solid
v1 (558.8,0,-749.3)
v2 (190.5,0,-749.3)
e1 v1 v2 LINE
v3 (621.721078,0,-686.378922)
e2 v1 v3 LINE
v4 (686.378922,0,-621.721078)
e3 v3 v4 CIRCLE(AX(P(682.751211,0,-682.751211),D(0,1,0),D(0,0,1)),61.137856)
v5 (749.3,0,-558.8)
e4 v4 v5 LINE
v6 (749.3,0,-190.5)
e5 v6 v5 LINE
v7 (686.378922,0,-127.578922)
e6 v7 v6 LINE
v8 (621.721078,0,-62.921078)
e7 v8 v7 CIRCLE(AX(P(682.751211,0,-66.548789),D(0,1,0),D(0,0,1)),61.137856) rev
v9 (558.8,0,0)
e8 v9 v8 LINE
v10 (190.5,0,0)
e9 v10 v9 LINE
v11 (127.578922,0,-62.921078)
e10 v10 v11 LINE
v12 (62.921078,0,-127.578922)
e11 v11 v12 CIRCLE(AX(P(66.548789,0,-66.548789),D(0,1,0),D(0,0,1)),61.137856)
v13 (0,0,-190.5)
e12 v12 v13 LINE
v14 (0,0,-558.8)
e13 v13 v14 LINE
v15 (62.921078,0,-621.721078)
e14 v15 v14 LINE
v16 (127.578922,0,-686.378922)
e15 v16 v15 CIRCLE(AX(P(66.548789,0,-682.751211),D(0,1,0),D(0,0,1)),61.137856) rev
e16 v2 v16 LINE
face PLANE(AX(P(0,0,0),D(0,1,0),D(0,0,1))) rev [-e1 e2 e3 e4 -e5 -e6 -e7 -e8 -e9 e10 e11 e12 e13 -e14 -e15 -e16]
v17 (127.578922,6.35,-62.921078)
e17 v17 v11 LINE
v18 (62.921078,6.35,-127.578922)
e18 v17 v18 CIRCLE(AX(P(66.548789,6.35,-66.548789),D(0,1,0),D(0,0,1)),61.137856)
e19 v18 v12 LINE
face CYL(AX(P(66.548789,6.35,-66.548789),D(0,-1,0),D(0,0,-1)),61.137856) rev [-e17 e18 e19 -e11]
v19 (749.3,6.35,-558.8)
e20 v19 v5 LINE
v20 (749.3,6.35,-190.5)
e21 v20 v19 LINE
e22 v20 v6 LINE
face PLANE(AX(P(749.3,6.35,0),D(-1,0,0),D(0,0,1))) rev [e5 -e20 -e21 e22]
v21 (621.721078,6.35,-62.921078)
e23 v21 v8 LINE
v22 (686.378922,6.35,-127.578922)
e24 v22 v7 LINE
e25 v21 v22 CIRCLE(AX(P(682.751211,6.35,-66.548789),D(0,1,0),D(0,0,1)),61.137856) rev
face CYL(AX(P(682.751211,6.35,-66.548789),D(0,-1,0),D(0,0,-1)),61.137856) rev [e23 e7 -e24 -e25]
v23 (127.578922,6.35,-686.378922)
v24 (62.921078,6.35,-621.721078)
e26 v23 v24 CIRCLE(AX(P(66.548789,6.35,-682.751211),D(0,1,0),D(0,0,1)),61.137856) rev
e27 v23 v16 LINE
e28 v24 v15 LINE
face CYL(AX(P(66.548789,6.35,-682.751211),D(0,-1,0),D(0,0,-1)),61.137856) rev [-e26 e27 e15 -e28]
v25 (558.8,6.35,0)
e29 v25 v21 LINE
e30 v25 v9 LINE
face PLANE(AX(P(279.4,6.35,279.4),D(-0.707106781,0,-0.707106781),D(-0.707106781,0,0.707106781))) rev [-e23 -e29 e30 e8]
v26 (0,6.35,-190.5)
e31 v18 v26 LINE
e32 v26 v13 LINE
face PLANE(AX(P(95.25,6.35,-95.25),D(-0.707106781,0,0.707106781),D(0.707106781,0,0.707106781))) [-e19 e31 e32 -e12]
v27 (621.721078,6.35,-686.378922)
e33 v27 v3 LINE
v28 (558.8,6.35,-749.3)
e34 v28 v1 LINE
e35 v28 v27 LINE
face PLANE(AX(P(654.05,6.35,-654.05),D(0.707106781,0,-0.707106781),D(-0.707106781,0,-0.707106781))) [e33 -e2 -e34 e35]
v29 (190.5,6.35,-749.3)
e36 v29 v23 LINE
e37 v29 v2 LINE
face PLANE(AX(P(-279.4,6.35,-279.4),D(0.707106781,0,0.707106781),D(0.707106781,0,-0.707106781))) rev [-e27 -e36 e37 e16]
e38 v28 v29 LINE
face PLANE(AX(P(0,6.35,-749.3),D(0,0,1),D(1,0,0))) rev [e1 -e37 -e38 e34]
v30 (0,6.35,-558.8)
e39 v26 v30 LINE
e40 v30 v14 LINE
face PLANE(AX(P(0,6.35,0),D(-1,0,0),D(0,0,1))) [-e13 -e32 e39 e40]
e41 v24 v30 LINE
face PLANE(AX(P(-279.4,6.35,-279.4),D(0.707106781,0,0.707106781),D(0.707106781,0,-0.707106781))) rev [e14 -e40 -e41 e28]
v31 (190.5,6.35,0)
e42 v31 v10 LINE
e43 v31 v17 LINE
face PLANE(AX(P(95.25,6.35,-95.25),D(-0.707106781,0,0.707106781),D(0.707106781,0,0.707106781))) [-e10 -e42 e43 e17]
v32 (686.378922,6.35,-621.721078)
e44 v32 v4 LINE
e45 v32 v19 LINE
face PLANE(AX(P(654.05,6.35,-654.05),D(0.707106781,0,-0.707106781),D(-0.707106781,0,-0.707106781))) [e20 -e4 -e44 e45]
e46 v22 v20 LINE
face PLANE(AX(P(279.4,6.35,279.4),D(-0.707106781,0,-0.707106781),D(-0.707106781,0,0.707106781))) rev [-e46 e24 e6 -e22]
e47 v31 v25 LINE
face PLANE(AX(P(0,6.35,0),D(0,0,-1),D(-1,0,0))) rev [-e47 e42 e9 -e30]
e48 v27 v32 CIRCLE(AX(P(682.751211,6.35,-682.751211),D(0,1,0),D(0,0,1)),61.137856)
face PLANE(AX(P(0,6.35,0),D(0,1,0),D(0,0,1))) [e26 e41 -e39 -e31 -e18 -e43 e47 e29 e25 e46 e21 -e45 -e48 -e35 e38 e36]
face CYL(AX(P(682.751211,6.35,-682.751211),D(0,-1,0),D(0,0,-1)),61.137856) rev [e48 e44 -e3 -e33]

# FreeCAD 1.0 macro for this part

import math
import FreeCAD as App
import Part
import Sketcher

V = App.Vector
Q = App.Units.Quantity

doc = App.newDocument("Part")
params = doc.addObject("Spreadsheet::Sheet", "Params")
for row, (alias, value) in enumerate([
    ("sketch1_width", "14.5 in"),
    ("pad1_length", "0.25 in"),
], start=1):
    params.set(f"A{row}", alias)
    params.set(f"B{row}", "=" + value)
    params.setAlias(f"B{row}", alias)

body = doc.addObject("PartDesign::Body", "Body")

# Sketch on XZ plane
sketch1 = body.newObject("Sketcher::SketchObject", "Sketch")
sketch1.AttachmentSupport = (doc.getObject("XZ_Plane"), [""])
sketch1.MapMode = "FlatFace"
sketch1.addGeometry([
    Part.LineSegment(V(128, -63, 0), V(190, 0, 0)),  # 0
    Part.LineSegment(V(190, 0, 0), V(559, 0, 0)),  # 1
    Part.LineSegment(V(559, 0, 0), V(622, -63, 0)),  # 2
    Part.ArcOfCircle(Part.Circle(V(683, -67, 0), V(0, 0, 1), 61), math.radians(177), math.radians(273)),  # 3
    Part.LineSegment(V(686, -128, 0), V(749, -190, 0)),  # 4
    Part.LineSegment(V(749, -190, 0), V(749, -559, 0)),  # 5
    Part.LineSegment(V(749, -559, 0), V(686, -622, 0)),  # 6
    Part.ArcOfCircle(Part.Circle(V(683, -683, 0), V(0, 0, 1), 61), math.radians(87), math.radians(183)),  # 7
    Part.LineSegment(V(622, -686, 0), V(559, -749, 0)),  # 8
    Part.LineSegment(V(559, -749, 0), V(190, -749, 0)),  # 9
    Part.LineSegment(V(190, -749, 0), V(128, -686, 0)),  # 10
    Part.ArcOfCircle(Part.Circle(V(67, -683, 0), V(0, 0, 1), 61), math.radians(-3), math.radians(93)),  # 11
    Part.LineSegment(V(63, -622, 0), V(0, -559, 0)),  # 12
    Part.LineSegment(V(0, -559, 0), V(0, -190, 0)),  # 13
    Part.LineSegment(V(0, -190, 0), V(63, -128, 0)),  # 14
    Part.ArcOfCircle(Part.Circle(V(67, -67, 0), V(0, 0, 1), 61), math.radians(-93), math.radians(3)),  # 15
], False)
sketch1.addConstraint([
    Sketcher.Constraint("Coincident", 0, 2, 1, 1),
    Sketcher.Constraint("Coincident", 1, 2, 2, 1),
    Sketcher.Constraint("Coincident", 2, 2, 3, 1),
    Sketcher.Constraint("Coincident", 3, 2, 4, 1),
    Sketcher.Constraint("Coincident", 4, 2, 5, 1),
    Sketcher.Constraint("Coincident", 5, 2, 6, 1),
    Sketcher.Constraint("Coincident", 6, 2, 7, 1),
    Sketcher.Constraint("Coincident", 7, 2, 8, 1),
    Sketcher.Constraint("Coincident", 8, 2, 9, 1),
    Sketcher.Constraint("Coincident", 9, 2, 10, 1),
    Sketcher.Constraint("Coincident", 10, 2, 11, 1),
    Sketcher.Constraint("Coincident", 11, 2, 12, 1),
    Sketcher.Constraint("Coincident", 12, 2, 13, 1),
    Sketcher.Constraint("Coincident", 13, 2, 14, 1),
    Sketcher.Constraint("Coincident", 14, 2, 15, 1),
    Sketcher.Constraint("Coincident", 15, 2, 0, 1),
    Sketcher.Constraint("Horizontal", 1),
    Sketcher.Constraint("Vertical", 5),
    Sketcher.Constraint("Horizontal", 9),
    Sketcher.Constraint("Vertical", 13),
    Sketcher.Constraint("Equal", 3, 7),
    Sketcher.Constraint("Equal", 7, 11),
    Sketcher.Constraint("Equal", 11, 15),
    Sketcher.Constraint("PointOnObject", 0, 2, -1),
    Sketcher.Constraint("PointOnObject", 12, 2, -2),
    Sketcher.Constraint("Perpendicular", 0, 2),
    Sketcher.Constraint("Parallel", 2, 4),
    Sketcher.Constraint("Perpendicular", 4, 6),
    Sketcher.Constraint("Parallel", 6, 8),
    Sketcher.Constraint("Perpendicular", 8, 10),
    Sketcher.Constraint("Parallel", 10, 12),
    Sketcher.Constraint("Perpendicular", 12, 14),
    Sketcher.Constraint("Horizontal", 7, 3, 11, 3),
    Sketcher.Constraint("Horizontal", 3, 3, 15, 3),
    Sketcher.Constraint("Horizontal", 7, 2, 10, 2),
    Sketcher.Constraint("Horizontal", 6, 2, 11, 2),
    Sketcher.Constraint("Horizontal", 5, 2, 12, 2),
    Sketcher.Constraint("Horizontal", 4, 2, 13, 2),
    Sketcher.Constraint("Horizontal", 3, 2, 14, 2),
    Sketcher.Constraint("Horizontal", 2, 2, 15, 2),
    Sketcher.Constraint("Vertical", 3, 3, 7, 3),
    Sketcher.Constraint("Vertical", 11, 3, 15, 3),
    Sketcher.Constraint("Vertical", 3, 2, 6, 2),
    Sketcher.Constraint("Vertical", 2, 2, 7, 2),
    Sketcher.Constraint("Vertical", 1, 2, 8, 2),
    Sketcher.Constraint("Equal", 9, 5),
    Sketcher.Constraint("Equal", 2, 4),
    Sketcher.Constraint("DistanceX", 1, 1, 1, 2, Q("14.5 in")),
    Sketcher.Constraint("DistanceX", -1, 1, 1, 2, Q("22 in")),
    Sketcher.Constraint("DistanceY", 5, 2, -1, 1, Q("22 in")),
    Sketcher.Constraint("Radius", 3, 61.137856),
    Sketcher.Constraint("Distance", 0, 88.983842),
])
sketch1.setExpression("Constraints[47]", "Params.sketch1_width")
pad1 = body.newObject("PartDesign::Pad", "Pad")
pad1.Profile = sketch1
pad1.setExpression("Length", "Params.pad1_length")
pad1.Reversed = True

doc.recompute()
